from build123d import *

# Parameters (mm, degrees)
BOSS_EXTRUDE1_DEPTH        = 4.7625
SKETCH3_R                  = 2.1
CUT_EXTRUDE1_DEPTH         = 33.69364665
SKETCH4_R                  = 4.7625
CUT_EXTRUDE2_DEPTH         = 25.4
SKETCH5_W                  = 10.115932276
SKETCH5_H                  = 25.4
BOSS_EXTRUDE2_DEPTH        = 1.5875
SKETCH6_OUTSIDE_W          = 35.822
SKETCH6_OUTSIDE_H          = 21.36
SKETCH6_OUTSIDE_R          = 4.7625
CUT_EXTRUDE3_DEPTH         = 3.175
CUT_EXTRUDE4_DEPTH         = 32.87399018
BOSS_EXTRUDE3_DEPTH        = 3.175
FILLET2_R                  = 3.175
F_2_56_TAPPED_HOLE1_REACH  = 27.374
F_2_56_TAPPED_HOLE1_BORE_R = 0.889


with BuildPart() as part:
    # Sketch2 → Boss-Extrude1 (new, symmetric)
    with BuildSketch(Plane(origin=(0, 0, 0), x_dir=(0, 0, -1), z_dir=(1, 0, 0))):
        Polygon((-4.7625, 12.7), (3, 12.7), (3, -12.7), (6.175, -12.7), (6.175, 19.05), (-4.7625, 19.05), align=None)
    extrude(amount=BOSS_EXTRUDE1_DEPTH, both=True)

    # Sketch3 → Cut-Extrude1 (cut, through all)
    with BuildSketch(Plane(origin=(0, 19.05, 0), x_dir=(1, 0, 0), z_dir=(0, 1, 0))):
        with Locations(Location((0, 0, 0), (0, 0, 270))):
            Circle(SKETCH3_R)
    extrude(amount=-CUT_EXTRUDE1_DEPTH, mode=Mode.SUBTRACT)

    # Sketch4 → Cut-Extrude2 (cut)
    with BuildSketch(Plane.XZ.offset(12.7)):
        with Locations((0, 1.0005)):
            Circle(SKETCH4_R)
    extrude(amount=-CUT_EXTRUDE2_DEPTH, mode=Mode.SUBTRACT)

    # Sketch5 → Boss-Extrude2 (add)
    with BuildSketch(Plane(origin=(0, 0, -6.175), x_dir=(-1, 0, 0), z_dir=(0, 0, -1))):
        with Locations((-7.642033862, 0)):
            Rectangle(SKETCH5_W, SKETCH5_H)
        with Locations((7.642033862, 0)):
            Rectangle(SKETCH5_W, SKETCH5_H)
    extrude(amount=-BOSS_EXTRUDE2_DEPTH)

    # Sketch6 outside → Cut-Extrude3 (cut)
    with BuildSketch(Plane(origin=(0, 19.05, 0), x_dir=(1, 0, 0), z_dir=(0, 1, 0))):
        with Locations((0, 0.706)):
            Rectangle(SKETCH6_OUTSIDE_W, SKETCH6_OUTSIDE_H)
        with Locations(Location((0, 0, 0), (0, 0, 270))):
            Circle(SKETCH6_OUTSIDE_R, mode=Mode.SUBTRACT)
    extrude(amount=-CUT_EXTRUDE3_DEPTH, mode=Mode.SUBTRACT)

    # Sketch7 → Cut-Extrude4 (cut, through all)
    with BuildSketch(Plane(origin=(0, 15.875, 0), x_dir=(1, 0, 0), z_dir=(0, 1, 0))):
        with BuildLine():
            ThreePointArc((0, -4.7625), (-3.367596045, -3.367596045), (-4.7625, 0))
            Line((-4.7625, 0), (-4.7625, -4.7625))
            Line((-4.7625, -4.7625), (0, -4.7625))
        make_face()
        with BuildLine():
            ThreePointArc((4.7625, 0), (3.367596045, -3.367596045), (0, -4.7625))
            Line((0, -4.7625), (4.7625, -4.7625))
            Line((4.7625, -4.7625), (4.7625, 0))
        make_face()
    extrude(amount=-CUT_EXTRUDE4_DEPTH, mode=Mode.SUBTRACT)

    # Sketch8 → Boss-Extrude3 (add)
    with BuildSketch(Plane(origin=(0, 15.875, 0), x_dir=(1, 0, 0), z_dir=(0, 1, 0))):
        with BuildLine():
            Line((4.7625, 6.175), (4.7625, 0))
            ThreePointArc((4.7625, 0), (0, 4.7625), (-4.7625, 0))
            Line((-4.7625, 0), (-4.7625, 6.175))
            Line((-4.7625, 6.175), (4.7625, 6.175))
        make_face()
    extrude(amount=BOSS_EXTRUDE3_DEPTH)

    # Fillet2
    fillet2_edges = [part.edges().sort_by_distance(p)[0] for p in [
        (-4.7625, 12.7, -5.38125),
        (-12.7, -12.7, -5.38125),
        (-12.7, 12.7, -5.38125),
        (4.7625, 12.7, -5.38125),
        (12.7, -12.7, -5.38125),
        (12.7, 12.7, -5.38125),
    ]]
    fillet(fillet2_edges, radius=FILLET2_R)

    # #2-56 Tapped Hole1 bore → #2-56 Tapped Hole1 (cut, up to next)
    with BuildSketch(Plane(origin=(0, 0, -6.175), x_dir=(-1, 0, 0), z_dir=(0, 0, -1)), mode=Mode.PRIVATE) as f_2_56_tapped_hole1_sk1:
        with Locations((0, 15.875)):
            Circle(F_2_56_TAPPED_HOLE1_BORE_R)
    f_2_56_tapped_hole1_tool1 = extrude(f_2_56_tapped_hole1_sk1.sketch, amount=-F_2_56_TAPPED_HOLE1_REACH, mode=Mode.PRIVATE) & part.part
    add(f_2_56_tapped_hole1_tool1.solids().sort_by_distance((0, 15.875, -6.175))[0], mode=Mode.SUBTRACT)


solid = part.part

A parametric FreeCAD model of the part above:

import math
import FreeCAD as App
import Part
import Sketcher
from FreeCAD import Vector
Q = App.Units.Quantity


def edges_at(feature, points):
    """Names of the edges that pass closest to the given points."""
    edges = feature.Shape.Edges
    near = lambda p: min(range(len(edges)), key=lambda i: edges[i].distToShape(Part.Vertex(*p))[0])
    return sorted({f"Edge{near(p) + 1}" for p in points})

doc = App.newDocument("Part")
params = doc.addObject("Spreadsheet::Sheet", "Params")
for row, (alias, value) in enumerate([
    ("sketch1_width", "1 in"),
    ("sketch1_width2", "1.25 in"),
    ("sketch1_height", "0.125 in"),
    ("pad1_length", "0.375 in"),
    ("sketch3_diameter", "0.375 in"),
    ("pocket2_length", "1 in"),
    ("sketch4_height", "1 in"),
    ("pad2_length", "0.0625 in"),
    ("sketch5_diameter", "0.375 in"),
    ("pocket3_length", "0.125 in"),
    ("sketch6_radius", "0.1875 in"),
    ("sketch7_radius", "0.1875 in"),
    ("pad3_length", "0.125 in"),
    ("fillet_radius", "0.125 in"),
    ("sketch8_diameter", "0.07 in"),
], start=1):
    params.set(f"A{row}", alias)
    params.set(f"B{row}", "=" + value)
    params.setAlias(f"B{row}", alias)

body = doc.addObject("PartDesign::Body", "Body")

# Sketch on YZ plane
sketch1 = body.newObject("Sketcher::SketchObject", "Sketch")
sketch1.AttachmentSupport = (doc.getObject("YZ_Plane"), [""])
sketch1.MapMode = "FlatFace"
sketch1.addGeometry([
    Part.LineSegment(Vector(12.7, 4.8, 0), Vector(12.7, -3, 0)),  # 0
    Part.LineSegment(Vector(12.7, -3, 0), Vector(-12.7, -3, 0)),  # 1
    Part.LineSegment(Vector(-12.7, -3, 0), Vector(-12.7, -6.2, 0)),  # 2
    Part.LineSegment(Vector(-12.7, -6.2, 0), Vector(19.1, -6.2, 0)),  # 3
    Part.LineSegment(Vector(19.1, -6.2, 0), Vector(19.1, 4.8, 0)),  # 4
    Part.LineSegment(Vector(19.1, 4.8, 0), Vector(12.7, 4.8, 0)),  # 5
], False)
sketch1.addConstraint([
    Sketcher.Constraint("Coincident", 0, 2, 1, 1),
    Sketcher.Constraint("Coincident", 1, 2, 2, 1),
    Sketcher.Constraint("Coincident", 2, 2, 3, 1),
    Sketcher.Constraint("Coincident", 3, 2, 4, 1),
    Sketcher.Constraint("Coincident", 4, 2, 5, 1),
    Sketcher.Constraint("Coincident", 5, 2, 0, 1),
    Sketcher.Constraint("Vertical", 0),
    Sketcher.Constraint("Horizontal", 1),
    Sketcher.Constraint("Vertical", 2),
    Sketcher.Constraint("Horizontal", 3),
    Sketcher.Constraint("Vertical", 4),
    Sketcher.Constraint("Horizontal", 5),
    Sketcher.Constraint("DistanceX", 1, 2, 1, 1, Q("1 in")),
    Sketcher.Constraint("DistanceX", 3, 1, 3, 2, Q("1.25 in")),
    Sketcher.Constraint("DistanceX", -1, 1, 0, 2, Q("0.5 in")),
    Sketcher.Constraint("DistanceY", 2, 2, 2, 1, Q("0.125 in")),
    Sketcher.Constraint("DistanceY", -1, 1, 4, 2, Q("0.1875 in")),
    Sketcher.Constraint("DistanceY", 0, 2, 0, 1, 7.7625),
])
sketch1.setExpression("Constraints[12]", "Params.sketch1_width")
sketch1.setExpression("Constraints[13]", "Params.sketch1_width2")
sketch1.setExpression("Constraints[15]", "Params.sketch1_height")
pad1 = body.newObject("PartDesign::Pad", "Pad")
pad1.Profile = sketch1
pad1.setExpression("Length", "Params.pad1_length")
pad1.Midplane = True

# Sketch on XZ plane
sketch2 = body.newObject("Sketcher::SketchObject", "Sketch001")
sketch2.AttachmentSupport = (doc.getObject("XZ_Plane"), [""])
sketch2.MapMode = "FlatFace"
sketch2.AttachmentOffset = App.Placement(Vector(0, 0, -0.75 * 25.4), App.Rotation())
sketch2.addGeometry(Part.Circle(Vector(0, 0, 0), Vector(0, 0, 1), 2.1), False)
sketch2.addConstraint([
    Sketcher.Constraint("Coincident", 0, 3, -1, 1),
    Sketcher.Constraint("Diameter", 0, 4.2),
])
pocket1 = body.newObject("PartDesign::Pocket", "Pocket")
pocket1.Profile = sketch2
pocket1.Type = "ThroughAll"
pocket1.Reversed = True

# Sketch on XZ plane
sketch3 = body.newObject("Sketcher::SketchObject", "Sketch002")
sketch3.AttachmentSupport = (doc.getObject("XZ_Plane"), [""])
sketch3.MapMode = "FlatFace"
sketch3.AttachmentOffset = App.Placement(Vector(0, 0, 0.5 * 25.4), App.Rotation())
sketch3.addGeometry(Part.Circle(Vector(0, 1, 0), Vector(0, 0, 1), 4.8), False)
sketch3.addConstraint([
    Sketcher.Constraint("PointOnObject", 0, 3, -2),
    Sketcher.Constraint("Diameter", 0, Q("0.375 in")),
    Sketcher.Constraint("DistanceY", -1, 1, 0, 3, 1.0005),
])
sketch3.setExpression("Constraints[1]", "Params.sketch3_diameter")
pocket2 = body.newObject("PartDesign::Pocket", "Pocket001")
pocket2.Profile = sketch3
pocket2.setExpression("Length", "Params.pocket2_length")

# Sketch on XY plane
sketch4 = body.newObject("Sketcher::SketchObject", "Sketch003")
sketch4.AttachmentSupport = (doc.getObject("XY_Plane"), [""])
sketch4.MapMode = "FlatFace"
sketch4.AttachmentOffset = App.Placement(Vector(0, 0, -6.175), App.Rotation())
sketch4.addGeometry([
    Part.LineSegment(Vector(13, 13, 0), Vector(13, -13, 0)),  # 0
    Part.LineSegment(Vector(13, -13, 0), Vector(3, -13, 0)),  # 1
    Part.LineSegment(Vector(3, -13, 0), Vector(3, 13, 0)),  # 2
    Part.LineSegment(Vector(3, 13, 0), Vector(13, 13, 0)),  # 3
    Part.LineSegment(Vector(-3, 13, 0), Vector(-3, -13, 0)),  # 4
    Part.LineSegment(Vector(-3, -13, 0), Vector(-13, -13, 0)),  # 5
    Part.LineSegment(Vector(-13, -13, 0), Vector(-13, 13, 0)),  # 6
    Part.LineSegment(Vector(-13, 13, 0), Vector(-3, 13, 0)),  # 7
], False)
sketch4.addConstraint([
    Sketcher.Constraint("Coincident", 0, 2, 1, 1),
    Sketcher.Constraint("Coincident", 1, 2, 2, 1),
    Sketcher.Constraint("Coincident", 2, 2, 3, 1),
    Sketcher.Constraint("Coincident", 3, 2, 0, 1),
    Sketcher.Constraint("Coincident", 4, 2, 5, 1),
    Sketcher.Constraint("Coincident", 5, 2, 6, 1),
    Sketcher.Constraint("Coincident", 6, 2, 7, 1),
    Sketcher.Constraint("Coincident", 7, 2, 4, 1),
    Sketcher.Constraint("Vertical", 0),
    Sketcher.Constraint("Horizontal", 1),
    Sketcher.Constraint("Vertical", 2),
    Sketcher.Constraint("Horizontal", 3),
    Sketcher.Constraint("Vertical", 4),
    Sketcher.Constraint("Horizontal", 5),
    Sketcher.Constraint("Vertical", 6),
    Sketcher.Constraint("Horizontal", 7),
    Sketcher.Constraint("Symmetric", 2, 2, 4, 2, -1, 1),
    Sketcher.Constraint("Symmetric", 0, 2, 6, 2, -1, 1),
    Sketcher.Constraint("Horizontal", 1, 2, 4, 2),
    Sketcher.Constraint("DistanceY", 0, 2, 0, 1, Q("1 in")),
    Sketcher.Constraint("DistanceX", 5, 2, 0, 2, Q("1 in")),
    Sketcher.Constraint("DistanceX", 1, 2, 1, 1, 10.115932),
])
sketch4.setExpression("Constraints[19]", "Params.sketch4_height")
pad2 = body.newObject("PartDesign::Pad", "Pad001")
pad2.Profile = sketch4
pad2.setExpression("Length", "Params.pad2_length")

# Sketch on XZ plane
sketch5 = body.newObject("Sketcher::SketchObject", "Sketch004")
sketch5.AttachmentSupport = (doc.getObject("XZ_Plane"), [""])
sketch5.MapMode = "FlatFace"
sketch5.AttachmentOffset = App.Placement(Vector(0, 0, -0.75 * 25.4), App.Rotation())
sketch5.addGeometry([
    Part.LineSegment(Vector(-17.9, -11.4, 0), Vector(-17.9, 10, 0)),  # 0
    Part.LineSegment(Vector(-17.9, 10, 0), Vector(17.9, 10, 0)),  # 1
    Part.LineSegment(Vector(17.9, 10, 0), Vector(17.9, -11.4, 0)),  # 2
    Part.LineSegment(Vector(17.9, -11.4, 0), Vector(-17.9, -11.4, 0)),  # 3
    Part.Circle(Vector(0, 0, 0), Vector(0, 0, 1), 4.8),  # 4
], False)
sketch5.addConstraint([
    Sketcher.Constraint("Coincident", 0, 2, 1, 1),
    Sketcher.Constraint("Coincident", 1, 2, 2, 1),
    Sketcher.Constraint("Coincident", 2, 2, 3, 1),
    Sketcher.Constraint("Coincident", 3, 2, 0, 1),
    Sketcher.Constraint("Vertical", 0),
    Sketcher.Constraint("Horizontal", 1),
    Sketcher.Constraint("Vertical", 2),
    Sketcher.Constraint("Horizontal", 3),
    Sketcher.Constraint("Coincident", 4, 3, -1, 1),
    Sketcher.Constraint("Diameter", 4, Q("0.375 in")),
    Sketcher.Constraint("DistanceX", 1, 1, 1, 2, 35.822),
    Sketcher.Constraint("DistanceY", 0, 1, 0, 2, 21.36),
    Sketcher.Constraint("DistanceX", 0, 2, -1, 1, 17.911),
    Sketcher.Constraint("DistanceY", -1, 1, 0, 2, 9.974),
])
sketch5.setExpression("Constraints[9]", "Params.sketch5_diameter")
pocket3 = body.newObject("PartDesign::Pocket", "Pocket002")
pocket3.Profile = sketch5
pocket3.setExpression("Length", "Params.pocket3_length")
pocket3.Reversed = True

# Sketch on XZ plane
sketch6 = body.newObject("Sketcher::SketchObject", "Sketch005")
sketch6.AttachmentSupport = (doc.getObject("XZ_Plane"), [""])
sketch6.MapMode = "FlatFace"
sketch6.AttachmentOffset = App.Placement(Vector(0, 0, -0.625 * 25.4), App.Rotation())
sketch6.addGeometry([
    Part.ArcOfCircle(Part.Circle(Vector(0, 0, 0), Vector(0, 0, 1), 4.8), math.radians(90), math.radians(180)),  # 0
    Part.LineSegment(Vector(-4.8, 0, 0), Vector(-4.8, 4.8, 0)),  # 1
    Part.LineSegment(Vector(-4.8, 4.8, 0), Vector(0, 4.8, 0)),  # 2
    Part.ArcOfCircle(Part.Circle(Vector(0, 0, 0), Vector(0, 0, 1), 4.8), math.radians(0), math.radians(90)),  # 3
    Part.LineSegment(Vector(0, 4.8, 0), Vector(4.8, 4.8, 0)),  # 4
    Part.LineSegment(Vector(4.8, 4.8, 0), Vector(4.8, 0, 0)),  # 5
], False)
sketch6.addConstraint([
    Sketcher.Constraint("Tangent", 0, 2, 1, 1),
    Sketcher.Constraint("Coincident", 1, 2, 2, 1),
    Sketcher.Constraint("Tangent", 2, 2, 0, 1),
    Sketcher.Constraint("Tangent", 3, 2, 4, 1),
    Sketcher.Constraint("Coincident", 4, 2, 5, 1),
    Sketcher.Constraint("Tangent", 5, 2, 3, 1),
    Sketcher.Constraint("Vertical", 1),
    Sketcher.Constraint("Horizontal", 2),
    Sketcher.Constraint("Horizontal", 4),
    Sketcher.Constraint("Vertical", 5),
    Sketcher.Constraint("Coincident", 0, 3, -1, 1),
    Sketcher.Constraint("Coincident", 3, 3, -1, 1),
    Sketcher.Constraint("Equal", 0, 3),
    Sketcher.Constraint("Radius", 0, Q("0.1875 in")),
])
sketch6.setExpression("Constraints[13]", "Params.sketch6_radius")
pocket4 = body.newObject("PartDesign::Pocket", "Pocket003")
pocket4.Profile = sketch6
pocket4.Type = "ThroughAll"
pocket4.Reversed = True

# Sketch on XZ plane
sketch7 = body.newObject("Sketcher::SketchObject", "Sketch006")
sketch7.AttachmentSupport = (doc.getObject("XZ_Plane"), [""])
sketch7.MapMode = "FlatFace"
sketch7.AttachmentOffset = App.Placement(Vector(0, 0, -0.625 * 25.4), App.Rotation())
sketch7.addGeometry([
    Part.LineSegment(Vector(4.8, 0, 0), Vector(4.8, -6.2, 0)),
    Part.LineSegment(Vector(4.8, -6.2, 0), Vector(-4.8, -6.2, 0)),
    Part.LineSegment(Vector(-4.8, -6.2, 0), Vector(-4.8, 0, 0)),
    Part.ArcOfCircle(Part.Circle(Vector(0, 0, 0), Vector(0, 0, 1), 4.8), math.radians(180), math.radians(360)),
], False)
sketch7.addConstraint([
    Sketcher.Constraint("Coincident", 0, 2, 1, 1),
    Sketcher.Constraint("Coincident", 1, 2, 2, 1),
    Sketcher.Constraint("Tangent", 2, 2, 3, 1),
    Sketcher.Constraint("Tangent", 3, 2, 0, 1),
    Sketcher.Constraint("Vertical", 0),
    Sketcher.Constraint("Horizontal", 1),
    Sketcher.Constraint("Vertical", 2),
    Sketcher.Constraint("Coincident", 3, 3, -1, 1),
    Sketcher.Constraint("Radius", 3, Q("0.1875 in")),
    Sketcher.Constraint("DistanceY", 0, 2, 0, 1, 6.175),
])
sketch7.setExpression("Constraints[8]", "Params.sketch7_radius")
pad3 = body.newObject("PartDesign::Pad", "Pad002")
pad3.Profile = sketch7
pad3.setExpression("Length", "Params.pad3_length")
pad3.Reversed = True
doc.recompute()

fillet = body.newObject("PartDesign::Fillet", "Fillet")
fillet.Base = (pad3, edges_at(pad3, [
    (-4.763, 12.7, -5.381),
    (-12.7, -12.7, -5.381),
    (-12.7, 12.7, -5.381),
    (4.763, 12.7, -5.381),
    (12.7, -12.7, -5.381),
    (12.7, 12.7, -5.381),
]))
fillet.setExpression("Radius", "Params.fillet_radius")

# Sketch on XY plane
sketch8 = body.newObject("Sketcher::SketchObject", "Sketch007")
sketch8.AttachmentSupport = (doc.getObject("XY_Plane"), [""])
sketch8.MapMode = "FlatFace"
sketch8.AttachmentOffset = App.Placement(Vector(0, 0, -6.175), App.Rotation())
sketch8.addGeometry(Part.Circle(Vector(0, 15.9, 0), Vector(0, 0, 1), 0.9), False)
sketch8.addConstraint([
    Sketcher.Constraint("PointOnObject", 0, 3, -2),
    Sketcher.Constraint("Diameter", 0, Q("0.07 in")),
    Sketcher.Constraint("DistanceY", -1, 1, 0, 3, Q("0.625 in")),
])
sketch8.setExpression("Constraints[1]", "Params.sketch8_diameter")
pocket5 = body.newObject("PartDesign::Pocket", "Pocket004")
pocket5.Profile = sketch8
pocket5.Type = "UpToFirst"
pocket5.Reversed = True

doc.recompute()
